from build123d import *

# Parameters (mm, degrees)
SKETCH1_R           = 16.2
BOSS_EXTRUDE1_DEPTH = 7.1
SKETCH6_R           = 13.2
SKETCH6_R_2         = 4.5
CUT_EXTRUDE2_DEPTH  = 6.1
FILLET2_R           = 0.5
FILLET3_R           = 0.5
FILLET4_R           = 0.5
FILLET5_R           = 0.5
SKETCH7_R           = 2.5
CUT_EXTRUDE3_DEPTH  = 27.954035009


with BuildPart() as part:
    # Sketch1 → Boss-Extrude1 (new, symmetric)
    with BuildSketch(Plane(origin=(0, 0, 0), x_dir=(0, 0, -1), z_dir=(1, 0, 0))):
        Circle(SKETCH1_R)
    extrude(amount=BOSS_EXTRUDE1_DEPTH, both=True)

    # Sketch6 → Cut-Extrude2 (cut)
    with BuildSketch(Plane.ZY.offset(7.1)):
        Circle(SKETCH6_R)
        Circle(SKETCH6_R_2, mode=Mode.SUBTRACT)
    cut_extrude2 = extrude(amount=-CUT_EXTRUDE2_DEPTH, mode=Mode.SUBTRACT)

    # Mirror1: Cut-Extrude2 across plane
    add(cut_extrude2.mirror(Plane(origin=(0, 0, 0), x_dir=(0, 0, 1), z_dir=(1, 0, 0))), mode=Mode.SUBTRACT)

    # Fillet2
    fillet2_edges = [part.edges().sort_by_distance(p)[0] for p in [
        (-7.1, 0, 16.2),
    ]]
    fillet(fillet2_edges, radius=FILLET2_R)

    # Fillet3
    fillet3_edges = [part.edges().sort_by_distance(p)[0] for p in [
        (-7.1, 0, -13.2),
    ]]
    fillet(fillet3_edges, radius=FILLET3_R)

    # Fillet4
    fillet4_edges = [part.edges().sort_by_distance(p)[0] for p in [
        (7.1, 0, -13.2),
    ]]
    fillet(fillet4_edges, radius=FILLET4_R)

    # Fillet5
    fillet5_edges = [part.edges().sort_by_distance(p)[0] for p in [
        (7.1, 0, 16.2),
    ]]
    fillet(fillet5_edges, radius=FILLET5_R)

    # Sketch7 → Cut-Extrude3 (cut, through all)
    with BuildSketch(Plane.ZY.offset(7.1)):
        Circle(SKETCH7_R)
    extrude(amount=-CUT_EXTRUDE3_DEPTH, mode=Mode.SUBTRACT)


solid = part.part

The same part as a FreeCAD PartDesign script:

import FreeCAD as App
import Part
import Sketcher
from FreeCAD import Vector


def edges_at(feature, points):
    """Names of the edges that pass closest to the given points."""
    edges = feature.Shape.Edges
    near = lambda p: min(range(len(edges)), key=lambda i: edges[i].distToShape(Part.Vertex(*p))[0])
    return sorted({f"Edge{near(p) + 1}" for p in points})

doc = App.newDocument("Part")
params = doc.addObject("Spreadsheet::Sheet", "Params")
for row, (alias, value) in enumerate([
    ("sketch1_diameter", "32.4 mm"),
    ("pad1_length", "14.2 mm"),
    ("sketch2_diameter", "9 mm"),
    ("sketch2_diameter2", "26.4 mm"),
    ("pocket1_length", "6.1 mm"),
    ("fillet_radius", "0.5 mm"),
    ("fillet2_radius", "0.5 mm"),
    ("fillet3_radius", "0.5 mm"),
    ("fillet4_radius", "0.5 mm"),
    ("sketch3_diameter", "5 mm"),
], start=1):
    params.set(f"A{row}", alias)
    params.set(f"B{row}", "=" + value)
    params.setAlias(f"B{row}", alias)

body = doc.addObject("PartDesign::Body", "Body")

sketch1 = body.newObject("Sketcher::SketchObject", "Sketch")
sketch1.AttachmentSupport = (doc.getObject("YZ_Plane"), [""])
sketch1.MapMode = "FlatFace"
sketch1.addGeometry(Part.Circle(Vector(0, 0, 0), Vector(0, 0, 1), 16), False)
sketch1.addConstraint([
    Sketcher.Constraint("Coincident", 0, 3, -1, 1),
    Sketcher.Constraint("Diameter", 0, 32.4),
])
sketch1.setExpression("Constraints[1]", "Params.sketch1_diameter")
pad1 = body.newObject("PartDesign::Pad", "Pad")
pad1.Profile = sketch1
pad1.setExpression("Length", "Params.pad1_length")
pad1.Midplane = True

sketch2 = body.newObject("Sketcher::SketchObject", "Sketch001")
sketch2.AttachmentSupport = (doc.getObject("YZ_Plane"), [""])
sketch2.MapMode = "FlatFace"
sketch2.AttachmentOffset = App.Placement(Vector(0, 0, -7.1), App.Rotation())
sketch2.addGeometry([
    Part.Circle(Vector(0, 0, 0), Vector(0, 0, 1), 13.2),
    Part.Circle(Vector(0, 0, 0), Vector(0, 0, 1), 4.5),
], False)
sketch2.addConstraint([
    Sketcher.Constraint("Coincident", 0, 3, -1, 1),
    Sketcher.Constraint("Coincident", 1, 3, -1, 1),
    Sketcher.Constraint("Diameter", 1, 9.0),
    Sketcher.Constraint("Diameter", 0, 26.4),
])
sketch2.setExpression("Constraints[2]", "Params.sketch2_diameter")
sketch2.setExpression("Constraints[3]", "Params.sketch2_diameter2")
pocket1 = body.newObject("PartDesign::Pocket", "Pocket")
pocket1.Profile = sketch2
pocket1.setExpression("Length", "Params.pocket1_length")
pocket1.Reversed = True
doc.recompute()

mirrored = body.newObject("PartDesign::Mirrored", "Mirrored")
mirrored.Originals = [pocket1]
mirrored.MirrorPlane = (doc.getObject("YZ_Plane"), [""])
body.Tip = mirrored
doc.recompute()

fillet = body.newObject("PartDesign::Fillet", "Fillet")
fillet.Base = (mirrored, edges_at(mirrored, [(-7.1, 0, 16.2)]))
fillet.setExpression("Radius", "Params.fillet_radius")
doc.recompute()

fillet2 = body.newObject("PartDesign::Fillet", "Fillet001")
fillet2.Base = (fillet, edges_at(fillet, [(-7.1, 0, -13.2)]))
fillet2.setExpression("Radius", "Params.fillet2_radius")
doc.recompute()

fillet3 = body.newObject("PartDesign::Fillet", "Fillet002")
fillet3.Base = (fillet2, edges_at(fillet2, [(7.1, 0, -13.2)]))
fillet3.setExpression("Radius", "Params.fillet3_radius")
doc.recompute()

fillet4 = body.newObject("PartDesign::Fillet", "Fillet003")
fillet4.Base = (fillet3, edges_at(fillet3, [(7.1, 0, 16.2)]))
fillet4.setExpression("Radius", "Params.fillet4_radius")

sketch3 = body.newObject("Sketcher::SketchObject", "Sketch002")
sketch3.AttachmentSupport = (doc.getObject("YZ_Plane"), [""])
sketch3.MapMode = "FlatFace"
sketch3.AttachmentOffset = App.Placement(Vector(0, 0, -7.1), App.Rotation())
sketch3.addGeometry(Part.Circle(Vector(0, 0, 0), Vector(0, 0, 1), 2.5), False)
sketch3.addConstraint([
    Sketcher.Constraint("Coincident", 0, 3, -1, 1),
    Sketcher.Constraint("Diameter", 0, 5.0),
])
sketch3.setExpression("Constraints[1]", "Params.sketch3_diameter")
pocket2 = body.newObject("PartDesign::Pocket", "Pocket001")
pocket2.Profile = sketch3
pocket2.Type = "ThroughAll"
pocket2.Reversed = True

doc.recompute()
